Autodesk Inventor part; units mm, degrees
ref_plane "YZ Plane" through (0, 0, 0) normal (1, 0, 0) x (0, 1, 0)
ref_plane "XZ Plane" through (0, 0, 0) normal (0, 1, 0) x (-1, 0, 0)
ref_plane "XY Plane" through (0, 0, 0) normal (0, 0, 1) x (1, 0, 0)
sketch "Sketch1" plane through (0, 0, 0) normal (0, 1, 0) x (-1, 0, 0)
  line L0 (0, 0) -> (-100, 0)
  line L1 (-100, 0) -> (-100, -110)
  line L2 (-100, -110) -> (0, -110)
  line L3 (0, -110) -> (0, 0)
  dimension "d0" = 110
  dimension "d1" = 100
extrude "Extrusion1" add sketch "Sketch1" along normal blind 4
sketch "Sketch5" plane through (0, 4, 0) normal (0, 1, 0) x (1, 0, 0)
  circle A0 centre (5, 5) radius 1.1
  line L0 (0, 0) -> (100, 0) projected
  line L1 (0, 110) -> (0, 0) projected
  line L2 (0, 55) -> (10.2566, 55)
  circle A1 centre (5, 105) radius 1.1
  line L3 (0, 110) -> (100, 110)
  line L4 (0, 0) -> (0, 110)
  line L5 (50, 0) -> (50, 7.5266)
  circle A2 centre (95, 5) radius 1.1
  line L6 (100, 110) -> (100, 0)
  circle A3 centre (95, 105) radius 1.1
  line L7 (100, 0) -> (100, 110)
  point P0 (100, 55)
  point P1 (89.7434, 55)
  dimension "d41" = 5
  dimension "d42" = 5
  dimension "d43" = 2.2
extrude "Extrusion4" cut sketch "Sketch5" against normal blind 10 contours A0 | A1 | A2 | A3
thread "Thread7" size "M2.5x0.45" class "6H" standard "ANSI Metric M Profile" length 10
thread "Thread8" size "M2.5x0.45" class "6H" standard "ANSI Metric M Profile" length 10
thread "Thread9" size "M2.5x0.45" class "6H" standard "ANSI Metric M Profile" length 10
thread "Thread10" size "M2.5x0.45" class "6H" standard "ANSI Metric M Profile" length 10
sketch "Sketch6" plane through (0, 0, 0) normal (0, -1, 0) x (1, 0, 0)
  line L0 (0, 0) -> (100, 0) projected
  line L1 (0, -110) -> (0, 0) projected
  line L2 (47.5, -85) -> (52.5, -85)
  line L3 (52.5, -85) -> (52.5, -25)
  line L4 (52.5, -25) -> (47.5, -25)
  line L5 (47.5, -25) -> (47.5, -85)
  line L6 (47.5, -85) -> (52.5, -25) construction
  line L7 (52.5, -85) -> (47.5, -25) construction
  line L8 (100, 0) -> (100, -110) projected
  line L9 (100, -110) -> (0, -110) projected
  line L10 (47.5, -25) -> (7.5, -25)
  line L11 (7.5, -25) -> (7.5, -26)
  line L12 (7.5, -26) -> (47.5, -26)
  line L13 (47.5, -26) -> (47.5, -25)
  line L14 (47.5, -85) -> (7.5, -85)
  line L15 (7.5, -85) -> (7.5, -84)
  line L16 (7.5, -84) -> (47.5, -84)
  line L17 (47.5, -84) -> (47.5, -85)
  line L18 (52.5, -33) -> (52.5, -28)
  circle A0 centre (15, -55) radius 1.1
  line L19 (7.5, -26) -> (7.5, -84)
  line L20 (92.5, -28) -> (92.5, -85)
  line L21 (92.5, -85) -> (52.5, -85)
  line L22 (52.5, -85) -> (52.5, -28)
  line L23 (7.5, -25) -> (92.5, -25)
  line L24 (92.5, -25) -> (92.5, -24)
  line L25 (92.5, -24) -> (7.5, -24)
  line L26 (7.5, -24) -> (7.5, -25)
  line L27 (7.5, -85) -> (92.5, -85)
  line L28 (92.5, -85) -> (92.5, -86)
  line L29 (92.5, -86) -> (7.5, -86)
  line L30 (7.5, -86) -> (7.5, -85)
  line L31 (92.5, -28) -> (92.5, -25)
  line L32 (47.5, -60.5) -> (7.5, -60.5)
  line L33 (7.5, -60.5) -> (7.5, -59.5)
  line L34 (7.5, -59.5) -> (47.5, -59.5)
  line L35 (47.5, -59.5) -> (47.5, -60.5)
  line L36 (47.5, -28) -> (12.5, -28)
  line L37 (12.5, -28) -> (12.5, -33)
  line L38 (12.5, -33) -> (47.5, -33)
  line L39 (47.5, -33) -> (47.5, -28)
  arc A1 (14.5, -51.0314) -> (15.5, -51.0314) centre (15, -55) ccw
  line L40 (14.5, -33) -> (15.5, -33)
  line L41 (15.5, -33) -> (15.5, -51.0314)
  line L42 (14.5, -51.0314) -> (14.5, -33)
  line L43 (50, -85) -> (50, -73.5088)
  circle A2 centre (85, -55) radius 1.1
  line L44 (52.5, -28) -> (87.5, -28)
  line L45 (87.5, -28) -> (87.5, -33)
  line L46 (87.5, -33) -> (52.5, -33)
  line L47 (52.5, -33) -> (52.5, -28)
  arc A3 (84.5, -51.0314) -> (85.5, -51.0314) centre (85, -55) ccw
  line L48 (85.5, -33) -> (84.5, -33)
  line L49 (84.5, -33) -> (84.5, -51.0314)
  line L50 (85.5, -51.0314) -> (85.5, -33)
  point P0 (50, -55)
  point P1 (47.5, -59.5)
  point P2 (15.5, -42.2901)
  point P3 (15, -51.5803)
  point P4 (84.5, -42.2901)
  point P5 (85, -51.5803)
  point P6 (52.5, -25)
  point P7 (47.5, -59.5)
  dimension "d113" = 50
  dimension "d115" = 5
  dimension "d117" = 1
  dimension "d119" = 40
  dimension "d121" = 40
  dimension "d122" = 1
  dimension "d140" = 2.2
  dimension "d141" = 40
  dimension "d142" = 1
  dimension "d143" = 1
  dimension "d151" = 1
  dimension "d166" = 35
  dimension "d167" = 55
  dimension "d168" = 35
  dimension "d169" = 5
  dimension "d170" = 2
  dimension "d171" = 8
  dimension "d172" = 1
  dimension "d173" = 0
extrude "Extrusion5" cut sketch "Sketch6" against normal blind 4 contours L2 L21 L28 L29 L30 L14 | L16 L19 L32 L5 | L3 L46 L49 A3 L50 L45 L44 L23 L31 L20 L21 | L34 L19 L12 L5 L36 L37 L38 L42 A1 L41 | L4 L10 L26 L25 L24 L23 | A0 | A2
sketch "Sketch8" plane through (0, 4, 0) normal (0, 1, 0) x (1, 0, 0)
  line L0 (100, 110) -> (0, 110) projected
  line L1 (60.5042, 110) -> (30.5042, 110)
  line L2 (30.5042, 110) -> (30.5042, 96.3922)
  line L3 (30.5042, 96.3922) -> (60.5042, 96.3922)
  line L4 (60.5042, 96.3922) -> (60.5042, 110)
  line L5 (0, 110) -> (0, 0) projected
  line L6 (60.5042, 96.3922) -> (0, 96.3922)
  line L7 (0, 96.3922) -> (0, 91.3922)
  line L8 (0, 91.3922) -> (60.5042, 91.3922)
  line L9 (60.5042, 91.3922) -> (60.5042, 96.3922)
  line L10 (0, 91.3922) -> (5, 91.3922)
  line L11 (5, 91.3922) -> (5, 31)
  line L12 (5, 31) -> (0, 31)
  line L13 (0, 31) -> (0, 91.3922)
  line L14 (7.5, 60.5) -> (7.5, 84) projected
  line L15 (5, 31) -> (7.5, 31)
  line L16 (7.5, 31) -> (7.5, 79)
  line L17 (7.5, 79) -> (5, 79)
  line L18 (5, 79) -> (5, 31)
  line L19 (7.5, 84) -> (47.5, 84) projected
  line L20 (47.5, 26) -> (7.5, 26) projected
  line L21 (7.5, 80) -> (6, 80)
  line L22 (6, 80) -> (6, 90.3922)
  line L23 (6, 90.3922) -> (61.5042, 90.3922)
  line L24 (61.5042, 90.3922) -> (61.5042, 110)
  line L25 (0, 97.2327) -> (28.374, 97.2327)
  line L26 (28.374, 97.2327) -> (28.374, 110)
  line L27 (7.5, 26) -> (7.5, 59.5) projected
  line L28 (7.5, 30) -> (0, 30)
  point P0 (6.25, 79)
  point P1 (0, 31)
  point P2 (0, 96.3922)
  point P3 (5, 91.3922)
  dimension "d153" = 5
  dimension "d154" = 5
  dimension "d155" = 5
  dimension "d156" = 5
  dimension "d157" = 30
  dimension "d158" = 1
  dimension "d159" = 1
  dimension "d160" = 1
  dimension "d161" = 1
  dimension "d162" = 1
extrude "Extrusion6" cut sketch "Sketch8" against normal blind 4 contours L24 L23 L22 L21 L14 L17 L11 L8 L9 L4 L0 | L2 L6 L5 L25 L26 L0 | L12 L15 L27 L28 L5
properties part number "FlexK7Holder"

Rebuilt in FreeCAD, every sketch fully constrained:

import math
import FreeCAD as App
import Part
import Sketcher

V = App.Vector

doc = App.newDocument("Part")
body = doc.addObject("PartDesign::Body", "Body")
body.AllowCompound = True

# Sketch on XZ plane
sketch1 = body.newObject("Sketcher::SketchObject", "Sketch")
sketch1.AttachmentSupport = (doc.getObject("XZ_Plane"), [""])
sketch1.MapMode = "FlatFace"
sketch1.addGeometry([
    Part.LineSegment(V(0, -110, 0), V(0, 0, 0)),
    Part.LineSegment(V(0, 0, 0), V(100, 0, 0)),
    Part.LineSegment(V(100, 0, 0), V(100, -110, 0)),
    Part.LineSegment(V(100, -110, 0), V(0, -110, 0)),
], False)
sketch1.addConstraint([
    Sketcher.Constraint("Coincident", 0, 2, 1, 1),
    Sketcher.Constraint("Coincident", 1, 2, 2, 1),
    Sketcher.Constraint("Coincident", 2, 2, 3, 1),
    Sketcher.Constraint("Coincident", 3, 2, 0, 1),
    Sketcher.Constraint("Vertical", 0),
    Sketcher.Constraint("Horizontal", 1),
    Sketcher.Constraint("Vertical", 2),
    Sketcher.Constraint("Horizontal", 3),
    Sketcher.Constraint("Coincident", 0, 2, -1, 1),
    Sketcher.Constraint("DistanceX", 1, 1, 1, 2, 100.0),
    Sketcher.Constraint("DistanceY", 0, 1, 0, 2, 110.0),
])
pad1 = body.newObject("PartDesign::Pad", "Pad")
pad1.Profile = sketch1
pad1.Length = 4
pad1.Reversed = True

# Sketch on XZ plane
sketch2 = body.newObject("Sketcher::SketchObject", "Sketch001")
sketch2.AttachmentSupport = (doc.getObject("XZ_Plane"), [""])
sketch2.MapMode = "FlatFace"
sketch2.AttachmentOffset = App.Placement(V(0, 0, -4), App.Rotation())
sketch2.addGeometry([
    Part.Circle(V(5, -5, 0), V(0, 0, 1), 1.1),
    Part.Circle(V(5, -105, 0), V(0, 0, 1), 1.1),
    Part.Circle(V(95, -5, 0), V(0, 0, 1), 1.1),
    Part.Circle(V(95, -105, 0), V(0, 0, 1), 1.1),
], False)
sketch2.addConstraint([
    Sketcher.Constraint("Equal", 0, 1),
    Sketcher.Constraint("Equal", 1, 2),
    Sketcher.Constraint("Equal", 2, 3),
    Sketcher.Constraint("Horizontal", 0, 3, 2, 3),
    Sketcher.Constraint("Horizontal", 1, 3, 3, 3),
    Sketcher.Constraint("Vertical", 0, 3, 1, 3),
    Sketcher.Constraint("Vertical", 2, 3, 3, 3),
    Sketcher.Constraint("Diameter", 0, 2.2),
    Sketcher.Constraint("DistanceX", -1, 1, 0, 3, 5.0),
    Sketcher.Constraint("DistanceY", 0, 3, -1, 1, 5.0),
    Sketcher.Constraint("DistanceY", 1, 3, -1, 1, 105.0),
    Sketcher.Constraint("DistanceX", -1, 1, 2, 3, 95.0),
])
pocket1 = body.newObject("PartDesign::Pocket", "Pocket")
pocket1.Profile = sketch2
pocket1.Length = 10
pocket1.Reversed = True

# Sketch on XZ plane
sketch3 = body.newObject("Sketcher::SketchObject", "Sketch002")
sketch3.AttachmentSupport = (doc.getObject("XZ_Plane"), [""])
sketch3.MapMode = "FlatFace"
sketch3.addGeometry([
    Part.LineSegment(V(7.5, -85, 0), V(7.5, -86, 0)),  # 0
    Part.LineSegment(V(7.5, -86, 0), V(92.5, -86, 0)),  # 1
    Part.LineSegment(V(92.5, -86, 0), V(92.5, -24, 0)),  # 2
    Part.LineSegment(V(92.5, -24, 0), V(7.5, -24, 0)),  # 3
    Part.LineSegment(V(7.5, -24, 0), V(7.5, -25, 0)),  # 4
    Part.LineSegment(V(7.5, -25, 0), V(52.5, -25, 0)),  # 5
    Part.LineSegment(V(52.5, -25, 0), V(52.5, -28, 0)),  # 6
    Part.LineSegment(V(52.5, -28, 0), V(87.5, -28, 0)),  # 7
    Part.LineSegment(V(87.5, -28, 0), V(87.5, -33, 0)),  # 8
    Part.LineSegment(V(87.5, -33, 0), V(85.5, -33, 0)),  # 9
    Part.LineSegment(V(85.5, -33, 0), V(85.5, -51, 0)),  # 10
    Part.ArcOfCircle(Part.Circle(V(85, -55, 0), V(0, 0, 1), 4), math.radians(97), math.radians(443)),  # 11
    Part.LineSegment(V(84.5, -51, 0), V(84.5, -33, 0)),  # 12
    Part.LineSegment(V(84.5, -33, 0), V(52.5, -33, 0)),  # 13
    Part.LineSegment(V(52.5, -33, 0), V(52.5, -85, 0)),  # 14
    Part.LineSegment(V(52.5, -85, 0), V(7.5, -85, 0)),  # 15
    Part.LineSegment(V(7.5, -84, 0), V(47.5, -84, 0)),  # 16
    Part.LineSegment(V(47.5, -84, 0), V(47.5, -60.5, 0)),  # 17
    Part.LineSegment(V(47.5, -60.5, 0), V(7.5, -60.5, 0)),  # 18
    Part.LineSegment(V(7.5, -60.5, 0), V(7.5, -84, 0)),  # 19
    Part.LineSegment(V(7.5, -59.5, 0), V(47.5, -59.5, 0)),  # 20
    Part.LineSegment(V(47.5, -59.5, 0), V(47.5, -33, 0)),  # 21
    Part.LineSegment(V(47.5, -33, 0), V(15.5, -33, 0)),  # 22
    Part.LineSegment(V(15.5, -33, 0), V(15.5, -51, 0)),  # 23
    Part.ArcOfCircle(Part.Circle(V(15, -55, 0), V(0, 0, 1), 4), math.radians(97), math.radians(443)),  # 24
    Part.LineSegment(V(14.5, -51, 0), V(14.5, -33, 0)),  # 25
    Part.LineSegment(V(14.5, -33, 0), V(12.5, -33, 0)),  # 26
    Part.LineSegment(V(12.5, -33, 0), V(12.5, -28, 0)),  # 27
    Part.LineSegment(V(12.5, -28, 0), V(47.5, -28, 0)),  # 28
    Part.LineSegment(V(47.5, -28, 0), V(47.5, -26, 0)),  # 29
    Part.LineSegment(V(47.5, -26, 0), V(7.5, -26, 0)),  # 30
    Part.LineSegment(V(7.5, -26, 0), V(7.5, -59.5, 0)),  # 31
    Part.Circle(V(15, -55, 0), V(0, 0, 1), 1.1),  # 32
    Part.Circle(V(85, -55, 0), V(0, 0, 1), 1.1),  # 33
], False)
sketch3.addConstraint([
    Sketcher.Constraint("Coincident", 0, 2, 1, 1),
    Sketcher.Constraint("Coincident", 1, 2, 2, 1),
    Sketcher.Constraint("Coincident", 2, 2, 3, 1),
    Sketcher.Constraint("Coincident", 3, 2, 4, 1),
    Sketcher.Constraint("Coincident", 4, 2, 5, 1),
    Sketcher.Constraint("Coincident", 5, 2, 6, 1),
    Sketcher.Constraint("Coincident", 6, 2, 7, 1),
    Sketcher.Constraint("Coincident", 7, 2, 8, 1),
    Sketcher.Constraint("Coincident", 8, 2, 9, 1),
    Sketcher.Constraint("Coincident", 9, 2, 10, 1),
    Sketcher.Constraint("Coincident", 10, 2, 11, 2),
    Sketcher.Constraint("Coincident", 11, 1, 12, 1),
    Sketcher.Constraint("Coincident", 12, 2, 13, 1),
    Sketcher.Constraint("Coincident", 13, 2, 14, 1),
    Sketcher.Constraint("Coincident", 14, 2, 15, 1),
    Sketcher.Constraint("Coincident", 15, 2, 0, 1),
    Sketcher.Constraint("Coincident", 16, 2, 17, 1),
    Sketcher.Constraint("Coincident", 17, 2, 18, 1),
    Sketcher.Constraint("Coincident", 18, 2, 19, 1),
    Sketcher.Constraint("Coincident", 19, 2, 16, 1),
    Sketcher.Constraint("Coincident", 20, 2, 21, 1),
    Sketcher.Constraint("Coincident", 21, 2, 22, 1),
    Sketcher.Constraint("Coincident", 22, 2, 23, 1),
    Sketcher.Constraint("Coincident", 23, 2, 24, 2),
    Sketcher.Constraint("Coincident", 24, 1, 25, 1),
    Sketcher.Constraint("Coincident", 25, 2, 26, 1),
    Sketcher.Constraint("Coincident", 26, 2, 27, 1),
    Sketcher.Constraint("Coincident", 27, 2, 28, 1),
    Sketcher.Constraint("Coincident", 28, 2, 29, 1),
    Sketcher.Constraint("Coincident", 29, 2, 30, 1),
    Sketcher.Constraint("Coincident", 30, 2, 31, 1),
    Sketcher.Constraint("Coincident", 31, 2, 20, 1),
    Sketcher.Constraint("Vertical", 0),
    Sketcher.Constraint("Horizontal", 1),
    Sketcher.Constraint("Vertical", 2),
    Sketcher.Constraint("Horizontal", 3),
    Sketcher.Constraint("Vertical", 4),
    Sketcher.Constraint("Horizontal", 5),
    Sketcher.Constraint("Vertical", 6),
    Sketcher.Constraint("Horizontal", 7),
    Sketcher.Constraint("Vertical", 8),
    Sketcher.Constraint("Horizontal", 9),
    Sketcher.Constraint("Vertical", 10),
    Sketcher.Constraint("Vertical", 12),
    Sketcher.Constraint("Horizontal", 13),
    Sketcher.Constraint("Vertical", 14),
    Sketcher.Constraint("Horizontal", 15),
    Sketcher.Constraint("Horizontal", 16),
    Sketcher.Constraint("Vertical", 17),
    Sketcher.Constraint("Horizontal", 18),
    Sketcher.Constraint("Vertical", 19),
    Sketcher.Constraint("Horizontal", 20),
    Sketcher.Constraint("Vertical", 21),
    Sketcher.Constraint("Horizontal", 22),
    Sketcher.Constraint("Vertical", 23),
    Sketcher.Constraint("Vertical", 25),
    Sketcher.Constraint("Horizontal", 26),
    Sketcher.Constraint("Vertical", 27),
    Sketcher.Constraint("Horizontal", 28),
    Sketcher.Constraint("Vertical", 29),
    Sketcher.Constraint("Horizontal", 30),
    Sketcher.Constraint("Vertical", 31),
    Sketcher.Constraint("Coincident", 32, 3, 24, 3),
    Sketcher.Constraint("Coincident", 33, 3, 11, 3),
    Sketcher.Constraint("Equal", 11, 24),
    Sketcher.Constraint("Equal", 32, 33),
    Sketcher.Constraint("Horizontal", 11, 3, 24, 3),
    Sketcher.Constraint("Horizontal", 10, 2, 11, 1),
    Sketcher.Constraint("Horizontal", 9, 2, 12, 2),
    Sketcher.Constraint("Horizontal", 13, 2, 21, 2),
    Sketcher.Constraint("Horizontal", 11, 1, 23, 2),
    Sketcher.Constraint("Horizontal", 23, 2, 24, 1),
    Sketcher.Constraint("Horizontal", 22, 2, 25, 2),
    Sketcher.Constraint("Horizontal", 7, 2, 27, 2),
    Sketcher.Constraint("Vertical", 0, 2, 3, 2),
    Sketcher.Constraint("Vertical", 6, 2, 13, 2),
    Sketcher.Constraint("Vertical", 15, 2, 18, 2),
    Sketcher.Constraint("Vertical", 17, 2, 20, 2),
    Sketcher.Constraint("Vertical", 21, 2, 28, 2),
    Sketcher.Constraint("Vertical", 19, 2, 30, 2),
    Sketcher.Constraint("Equal", 13, 22),
    Sketcher.Constraint("Equal", 9, 26),
    Sketcher.Constraint("Equal", 0, 4),
    Sketcher.Constraint("Equal", 26, 29),
    Sketcher.Constraint("Radius", 11, 4.0),
    Sketcher.Constraint("Diameter", 32, 2.2),
    Sketcher.Constraint("DistanceX", 7, 1, 7, 2, 35.0),
    Sketcher.Constraint("DistanceX", 9, 2, 9, 1, 2.0),
    Sketcher.Constraint("DistanceX", 16, 1, 16, 2, 40.0),
    Sketcher.Constraint("DistanceY", 0, 2, 0, 1, 1.0),
    Sketcher.Constraint("DistanceY", 8, 2, 8, 1, 5.0),
    Sketcher.Constraint("DistanceY", 11, 3, -1, 1, 55.0),
    Sketcher.Constraint("DistanceX", 5, 2, 2, 2, 40.0),
    Sketcher.Constraint("DistanceX", 11, 1, 10, 2, 1.0),
    Sketcher.Constraint("DistanceY", 13, 2, 5, 2, 8.0),
    Sketcher.Constraint("DistanceX", 16, 2, 14, 2, 5.0),
    Sketcher.Constraint("DistanceY", 14, 2, 16, 2, 1.0),
    Sketcher.Constraint("DistanceY", 17, 2, 20, 2, 1.0),
    Sketcher.Constraint("DistanceY", 2, 1, 2, 2, 62.0),
    Sketcher.Constraint("DistanceY", 17, 1, 17, 2, 23.5),
    Sketcher.Constraint("DistanceX", -1, 1, 11, 3, 85.0),
    Sketcher.Constraint("DistanceY", 0, 2, -1, 1, 86.0),
])
pocket2 = body.newObject("PartDesign::Pocket", "Pocket001")
pocket2.Profile = sketch3
pocket2.Length = 4

# Sketch on XZ plane
sketch4 = body.newObject("Sketcher::SketchObject", "Sketch003")
sketch4.AttachmentSupport = (doc.getObject("XZ_Plane"), [""])
sketch4.MapMode = "FlatFace"
sketch4.AttachmentOffset = App.Placement(V(0, 0, -4), App.Rotation())
sketch4.addGeometry([
    Part.LineSegment(V(61.5, -90.4, 0), V(61.5, -110, 0)),  # 0
    Part.LineSegment(V(61.5, -110, 0), V(60.5, -110, 0)),  # 1
    Part.LineSegment(V(60.5, -110, 0), V(60.5, -91.4, 0)),  # 2
    Part.LineSegment(V(60.5, -91.4, 0), V(5, -91.4, 0)),  # 3
    Part.LineSegment(V(5, -91.4, 0), V(5, -79, 0)),  # 4
    Part.LineSegment(V(5, -79, 0), V(7.5, -79, 0)),  # 5
    Part.LineSegment(V(7.5, -79, 0), V(7.5, -80, 0)),  # 6
    Part.LineSegment(V(7.5, -80, 0), V(6, -80, 0)),  # 7
    Part.LineSegment(V(6, -80, 0), V(6, -90.4, 0)),  # 8
    Part.LineSegment(V(6, -90.4, 0), V(61.5, -90.4, 0)),  # 9
    Part.LineSegment(V(30.5, -96.4, 0), V(30.5, -110, 0)),  # 10
    Part.LineSegment(V(30.5, -110, 0), V(28.4, -110, 0)),  # 11
    Part.LineSegment(V(28.4, -110, 0), V(28.4, -97.2, 0)),  # 12
    Part.LineSegment(V(28.4, -97.2, 0), V(0, -97.2, 0)),  # 13
    Part.LineSegment(V(0, -97.2, 0), V(0, -96.4, 0)),  # 14
    Part.LineSegment(V(0, -96.4, 0), V(30.5, -96.4, 0)),  # 15
    Part.LineSegment(V(7.5, -31, 0), V(0, -31, 0)),  # 16
    Part.LineSegment(V(0, -31, 0), V(0, -30, 0)),  # 17
    Part.LineSegment(V(0, -30, 0), V(7.5, -30, 0)),  # 18
    Part.LineSegment(V(7.5, -30, 0), V(7.5, -31, 0)),  # 19
], False)
sketch4.addConstraint([
    Sketcher.Constraint("Coincident", 0, 2, 1, 1),
    Sketcher.Constraint("Coincident", 1, 2, 2, 1),
    Sketcher.Constraint("Coincident", 2, 2, 3, 1),
    Sketcher.Constraint("Coincident", 3, 2, 4, 1),
    Sketcher.Constraint("Coincident", 4, 2, 5, 1),
    Sketcher.Constraint("Coincident", 5, 2, 6, 1),
    Sketcher.Constraint("Coincident", 6, 2, 7, 1),
    Sketcher.Constraint("Coincident", 7, 2, 8, 1),
    Sketcher.Constraint("Coincident", 8, 2, 9, 1),
    Sketcher.Constraint("Coincident", 9, 2, 0, 1),
    Sketcher.Constraint("Coincident", 10, 2, 11, 1),
    Sketcher.Constraint("Coincident", 11, 2, 12, 1),
    Sketcher.Constraint("Coincident", 12, 2, 13, 1),
    Sketcher.Constraint("Coincident", 13, 2, 14, 1),
    Sketcher.Constraint("Coincident", 14, 2, 15, 1),
    Sketcher.Constraint("Coincident", 15, 2, 10, 1),
    Sketcher.Constraint("Coincident", 16, 2, 17, 1),
    Sketcher.Constraint("Coincident", 17, 2, 18, 1),
    Sketcher.Constraint("Coincident", 18, 2, 19, 1),
    Sketcher.Constraint("Coincident", 19, 2, 16, 1),
    Sketcher.Constraint("Vertical", 0),
    Sketcher.Constraint("Horizontal", 1),
    Sketcher.Constraint("Vertical", 2),
    Sketcher.Constraint("Horizontal", 3),
    Sketcher.Constraint("Vertical", 4),
    Sketcher.Constraint("Horizontal", 5),
    Sketcher.Constraint("Vertical", 6),
    Sketcher.Constraint("Horizontal", 7),
    Sketcher.Constraint("Vertical", 8),
    Sketcher.Constraint("Horizontal", 9),
    Sketcher.Constraint("Vertical", 10),
    Sketcher.Constraint("Horizontal", 11),
    Sketcher.Constraint("Vertical", 12),
    Sketcher.Constraint("Horizontal", 13),
    Sketcher.Constraint("Vertical", 14),
    Sketcher.Constraint("Horizontal", 15),
    Sketcher.Constraint("Horizontal", 16),
    Sketcher.Constraint("Vertical", 17),
    Sketcher.Constraint("Horizontal", 18),
    Sketcher.Constraint("Vertical", 19),
    Sketcher.Constraint("PointOnObject", 13, 2, -2),
    Sketcher.Constraint("PointOnObject", 16, 2, -2),
    Sketcher.Constraint("Horizontal", 1, 2, 10, 2),
    Sketcher.Constraint("Vertical", 6, 2, 18, 2),
    Sketcher.Constraint("Equal", 3, 9),
    Sketcher.Constraint("Equal", 1, 6),
    Sketcher.Constraint("Equal", 6, 17),
    Sketcher.Constraint("DistanceX", 1, 2, 1, 1, 1.0),
    Sketcher.Constraint("DistanceX", -1, 1, 3, 2, 5.0),
    Sketcher.Constraint("DistanceY", 17, 2, -1, 1, 30.0),
    Sketcher.Constraint("DistanceY", 1, 2, 6, 2, 30.0),
    Sketcher.Constraint("DistanceY", 3, 2, 8, 2, 1.0),
    Sketcher.Constraint("DistanceX", 10, 2, 1, 2, 30.0),
    Sketcher.Constraint("DistanceY", 14, 2, 3, 2, 5.0),
    Sketcher.Constraint("DistanceX", 5, 1, 5, 2, 2.5),
    Sketcher.Constraint("DistanceY", 0, 2, -1, 1, 110.0),
    Sketcher.Constraint("DistanceX", 13, 2, 13, 1, 28.374),
    Sketcher.Constraint("DistanceX", 3, 2, 3, 1, 55.5042),
    Sketcher.Constraint("DistanceY", 0, 2, 0, 1, 19.6078),
    Sketcher.Constraint("DistanceY", 12, 1, 12, 2, 12.7673),
])
pocket3 = body.newObject("PartDesign::Pocket", "Pocket002")
pocket3.Profile = sketch4
pocket3.Length = 4
pocket3.Reversed = True

doc.recompute()
